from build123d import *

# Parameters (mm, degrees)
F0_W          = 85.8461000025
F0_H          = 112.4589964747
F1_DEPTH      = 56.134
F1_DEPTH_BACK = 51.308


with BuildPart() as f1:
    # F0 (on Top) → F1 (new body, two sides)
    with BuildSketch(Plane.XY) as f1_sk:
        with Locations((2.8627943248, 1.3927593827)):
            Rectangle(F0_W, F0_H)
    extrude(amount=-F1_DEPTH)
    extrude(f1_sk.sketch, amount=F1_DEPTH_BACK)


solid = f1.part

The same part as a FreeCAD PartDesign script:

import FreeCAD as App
import Part
import Sketcher
Q = App.Units.Quantity


def add_polygon(sketch, points):
    """Adds a closed chain of lines whose ends are joined by coincident constraints."""
    first, n = sketch.GeometryCount, len(points)
    for a, b in zip(points, points[1:] + points[:1]):
        sketch.addGeometry(Part.LineSegment(App.Vector(*a, 0), App.Vector(*b, 0)), False)
    for i in range(n):
        sketch.addConstraint(Sketcher.Constraint("Coincident", first + i, 2, first + (i + 1) % n, 1))

doc = App.newDocument("Part")
body = doc.addObject("PartDesign::Body", "Body")

sketch1 = doc.addObject("Sketcher::SketchObject", "Sketch")
body.addObject(sketch1)
sketch1.AttachmentSupport = (doc.XY_Plane, [""])
sketch1.MapMode = "FlatFace"
add_polygon(sketch1, [(-40, 58), (-40, -55), (46, -55), (46, 58)])
sketch1.addConstraint([
    Sketcher.Constraint("Vertical", 0),
    Sketcher.Constraint("Horizontal", 1),
    Sketcher.Constraint("Vertical", 2),
    Sketcher.Constraint("Horizontal", 3),
    Sketcher.Constraint("DistanceX", 1, 1, 1, 2, Q("85.8461 mm")),
    Sketcher.Constraint("DistanceY", 0, 2, 0, 1, Q("112.458996 mm")),
    Sketcher.Constraint("DistanceY", 0, 2, -1, 1, Q("54.836739 mm")),
    Sketcher.Constraint("DistanceX", 0, 2, -1, 1, Q("40.060256 mm")),
])
pad1 = doc.addObject("PartDesign::Pad", "Pad")
body.addObject(pad1)
pad1.Profile = sketch1
pad1.Type = "TwoLengths"
pad1.Length = Q("2.21 in")
pad1.Length2 = Q("2.02 in")
pad1.Reversed = True

doc.recompute()
